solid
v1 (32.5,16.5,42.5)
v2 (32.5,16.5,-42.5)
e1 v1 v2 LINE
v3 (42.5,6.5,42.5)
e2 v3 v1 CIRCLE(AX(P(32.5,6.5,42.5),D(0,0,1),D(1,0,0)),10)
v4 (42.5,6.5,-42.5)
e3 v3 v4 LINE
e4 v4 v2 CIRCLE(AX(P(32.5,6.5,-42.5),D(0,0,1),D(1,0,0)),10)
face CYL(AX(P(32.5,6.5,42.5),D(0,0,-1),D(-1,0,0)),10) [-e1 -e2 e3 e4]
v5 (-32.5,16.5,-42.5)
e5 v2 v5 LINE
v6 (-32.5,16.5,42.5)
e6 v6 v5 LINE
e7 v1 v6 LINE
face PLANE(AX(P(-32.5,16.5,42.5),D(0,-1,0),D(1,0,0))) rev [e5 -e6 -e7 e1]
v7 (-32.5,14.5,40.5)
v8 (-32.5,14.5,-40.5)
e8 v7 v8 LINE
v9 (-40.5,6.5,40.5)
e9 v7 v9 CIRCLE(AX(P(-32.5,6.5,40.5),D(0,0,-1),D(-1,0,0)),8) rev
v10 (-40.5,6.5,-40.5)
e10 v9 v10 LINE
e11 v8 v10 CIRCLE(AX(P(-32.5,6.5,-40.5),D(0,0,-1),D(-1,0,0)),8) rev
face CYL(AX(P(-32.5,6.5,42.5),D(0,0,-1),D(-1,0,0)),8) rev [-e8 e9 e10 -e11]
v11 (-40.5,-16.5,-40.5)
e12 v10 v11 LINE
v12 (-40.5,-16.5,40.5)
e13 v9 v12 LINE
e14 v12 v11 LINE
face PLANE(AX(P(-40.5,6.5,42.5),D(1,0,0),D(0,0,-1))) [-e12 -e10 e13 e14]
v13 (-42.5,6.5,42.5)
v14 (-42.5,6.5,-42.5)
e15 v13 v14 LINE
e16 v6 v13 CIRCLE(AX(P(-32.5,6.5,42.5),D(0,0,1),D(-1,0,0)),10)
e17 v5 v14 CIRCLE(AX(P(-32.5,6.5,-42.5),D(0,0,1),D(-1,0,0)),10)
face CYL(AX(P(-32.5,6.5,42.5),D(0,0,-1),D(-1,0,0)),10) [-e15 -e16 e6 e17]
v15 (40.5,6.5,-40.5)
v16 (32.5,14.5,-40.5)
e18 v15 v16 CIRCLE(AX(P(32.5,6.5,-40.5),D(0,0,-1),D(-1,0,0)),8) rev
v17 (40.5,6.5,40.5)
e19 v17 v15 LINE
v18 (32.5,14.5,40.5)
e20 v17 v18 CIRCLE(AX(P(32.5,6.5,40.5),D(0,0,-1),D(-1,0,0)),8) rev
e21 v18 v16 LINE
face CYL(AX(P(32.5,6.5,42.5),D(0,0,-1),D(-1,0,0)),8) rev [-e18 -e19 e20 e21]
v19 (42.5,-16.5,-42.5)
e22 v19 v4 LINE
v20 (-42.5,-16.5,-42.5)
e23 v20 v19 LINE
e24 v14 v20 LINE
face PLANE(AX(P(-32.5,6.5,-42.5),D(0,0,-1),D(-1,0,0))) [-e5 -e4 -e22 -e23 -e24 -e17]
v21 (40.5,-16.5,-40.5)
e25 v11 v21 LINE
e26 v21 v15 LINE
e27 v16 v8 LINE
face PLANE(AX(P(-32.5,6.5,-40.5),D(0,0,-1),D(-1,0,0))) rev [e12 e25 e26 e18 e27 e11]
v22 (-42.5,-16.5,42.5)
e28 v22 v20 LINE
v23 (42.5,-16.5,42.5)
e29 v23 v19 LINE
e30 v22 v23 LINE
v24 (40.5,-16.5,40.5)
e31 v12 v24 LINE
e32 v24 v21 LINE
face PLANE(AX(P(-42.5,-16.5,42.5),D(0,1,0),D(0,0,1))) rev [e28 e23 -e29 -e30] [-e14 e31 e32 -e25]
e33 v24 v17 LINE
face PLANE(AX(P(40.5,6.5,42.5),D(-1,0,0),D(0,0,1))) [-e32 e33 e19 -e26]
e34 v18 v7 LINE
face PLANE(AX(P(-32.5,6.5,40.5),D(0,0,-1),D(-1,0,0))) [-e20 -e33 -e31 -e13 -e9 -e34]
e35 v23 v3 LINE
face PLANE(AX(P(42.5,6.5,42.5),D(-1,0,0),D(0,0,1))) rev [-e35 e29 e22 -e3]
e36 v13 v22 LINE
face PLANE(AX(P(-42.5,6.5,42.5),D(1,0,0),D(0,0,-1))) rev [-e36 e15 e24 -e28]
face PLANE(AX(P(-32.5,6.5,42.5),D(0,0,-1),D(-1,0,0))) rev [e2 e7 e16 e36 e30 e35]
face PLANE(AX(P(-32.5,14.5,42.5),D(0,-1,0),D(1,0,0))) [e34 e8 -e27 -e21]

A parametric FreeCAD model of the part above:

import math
import FreeCAD as App
import Part
import Sketcher

V = App.Vector


def faces_at(feature, points):
    """Names of the faces that lie closest to the given points."""
    faces = feature.Shape.Faces
    near = lambda p: min(range(len(faces)), key=lambda i: faces[i].distToShape(Part.Vertex(*p))[0])
    return sorted({f"Face{near(p) + 1}" for p in points})

doc = App.newDocument("Part")
params = doc.addObject("Spreadsheet::Sheet", "Params")
for row, (alias, value) in enumerate([
    ("sketch1_radius", "10 mm"),
    ("sketch1_width", "65 mm"),
    ("sketch1_height", "23 mm"),
    ("pad1_length", "85 mm"),
    ("thickness_wall", "2 mm"),
], start=1):
    params.set(f"A{row}", alias)
    params.set(f"B{row}", "=" + value)
    params.setAlias(f"B{row}", alias)

body = doc.addObject("PartDesign::Body", "Body")

# Sketch on XY plane
sketch1 = body.newObject("Sketcher::SketchObject", "Sketch")
sketch1.AttachmentSupport = (doc.getObject("XY_Plane"), [""])
sketch1.MapMode = "FlatFace"
sketch1.addGeometry([
    Part.LineSegment(V(32, 16, 0), V(-32, 16, 0)),  # 0
    Part.ArcOfCircle(Part.Circle(V(-32, 6, 0), V(0, 0, 1), 10), math.radians(90), math.radians(180)),  # 1
    Part.LineSegment(V(-42, 6, 0), V(-42, -16, 0)),  # 2
    Part.LineSegment(V(-42, -16, 0), V(42, -16, 0)),  # 3
    Part.LineSegment(V(42, -16, 0), V(42, 6, 0)),  # 4
    Part.ArcOfCircle(Part.Circle(V(32, 6, 0), V(0, 0, 1), 10), math.radians(0), math.radians(90)),  # 5
], False)
sketch1.addConstraint([
    Sketcher.Constraint("Tangent", 0, 2, 1, 1),
    Sketcher.Constraint("Tangent", 1, 2, 2, 1),
    Sketcher.Constraint("Coincident", 2, 2, 3, 1),
    Sketcher.Constraint("Coincident", 3, 2, 4, 1),
    Sketcher.Constraint("Tangent", 4, 2, 5, 1),
    Sketcher.Constraint("Tangent", 5, 2, 0, 1),
    Sketcher.Constraint("Horizontal", 0),
    Sketcher.Constraint("Vertical", 2),
    Sketcher.Constraint("Horizontal", 3),
    Sketcher.Constraint("Vertical", 4),
    Sketcher.Constraint("Equal", 1, 5),
    Sketcher.Constraint("Radius", 1, 10.0),
    Sketcher.Constraint("DistanceX", 0, 2, 0, 1, 65.0),
    Sketcher.Constraint("DistanceY", 2, 2, 2, 1, 23.0),
    Sketcher.Constraint("DistanceX", 1, 3, -1, 1, 32.5),
    Sketcher.Constraint("DistanceY", -1, 1, 1, 3, 6.5),
])
sketch1.setExpression("Constraints[11]", "Params.sketch1_radius")
sketch1.setExpression("Constraints[12]", "Params.sketch1_width")
sketch1.setExpression("Constraints[13]", "Params.sketch1_height")
pad1 = body.newObject("PartDesign::Pad", "Pad")
pad1.Profile = sketch1
pad1.setExpression("Length", "Params.pad1_length")
pad1.Midplane = True
doc.recompute()

thickness = body.newObject("PartDesign::Thickness", "Thickness")
thickness.Base = (pad1, faces_at(pad1, [(0, -16.5, 0)]))
thickness.setExpression("Value", "Params.thickness_wall")
thickness.Reversed = True
thickness.Join = "Intersection"

doc.recompute()
